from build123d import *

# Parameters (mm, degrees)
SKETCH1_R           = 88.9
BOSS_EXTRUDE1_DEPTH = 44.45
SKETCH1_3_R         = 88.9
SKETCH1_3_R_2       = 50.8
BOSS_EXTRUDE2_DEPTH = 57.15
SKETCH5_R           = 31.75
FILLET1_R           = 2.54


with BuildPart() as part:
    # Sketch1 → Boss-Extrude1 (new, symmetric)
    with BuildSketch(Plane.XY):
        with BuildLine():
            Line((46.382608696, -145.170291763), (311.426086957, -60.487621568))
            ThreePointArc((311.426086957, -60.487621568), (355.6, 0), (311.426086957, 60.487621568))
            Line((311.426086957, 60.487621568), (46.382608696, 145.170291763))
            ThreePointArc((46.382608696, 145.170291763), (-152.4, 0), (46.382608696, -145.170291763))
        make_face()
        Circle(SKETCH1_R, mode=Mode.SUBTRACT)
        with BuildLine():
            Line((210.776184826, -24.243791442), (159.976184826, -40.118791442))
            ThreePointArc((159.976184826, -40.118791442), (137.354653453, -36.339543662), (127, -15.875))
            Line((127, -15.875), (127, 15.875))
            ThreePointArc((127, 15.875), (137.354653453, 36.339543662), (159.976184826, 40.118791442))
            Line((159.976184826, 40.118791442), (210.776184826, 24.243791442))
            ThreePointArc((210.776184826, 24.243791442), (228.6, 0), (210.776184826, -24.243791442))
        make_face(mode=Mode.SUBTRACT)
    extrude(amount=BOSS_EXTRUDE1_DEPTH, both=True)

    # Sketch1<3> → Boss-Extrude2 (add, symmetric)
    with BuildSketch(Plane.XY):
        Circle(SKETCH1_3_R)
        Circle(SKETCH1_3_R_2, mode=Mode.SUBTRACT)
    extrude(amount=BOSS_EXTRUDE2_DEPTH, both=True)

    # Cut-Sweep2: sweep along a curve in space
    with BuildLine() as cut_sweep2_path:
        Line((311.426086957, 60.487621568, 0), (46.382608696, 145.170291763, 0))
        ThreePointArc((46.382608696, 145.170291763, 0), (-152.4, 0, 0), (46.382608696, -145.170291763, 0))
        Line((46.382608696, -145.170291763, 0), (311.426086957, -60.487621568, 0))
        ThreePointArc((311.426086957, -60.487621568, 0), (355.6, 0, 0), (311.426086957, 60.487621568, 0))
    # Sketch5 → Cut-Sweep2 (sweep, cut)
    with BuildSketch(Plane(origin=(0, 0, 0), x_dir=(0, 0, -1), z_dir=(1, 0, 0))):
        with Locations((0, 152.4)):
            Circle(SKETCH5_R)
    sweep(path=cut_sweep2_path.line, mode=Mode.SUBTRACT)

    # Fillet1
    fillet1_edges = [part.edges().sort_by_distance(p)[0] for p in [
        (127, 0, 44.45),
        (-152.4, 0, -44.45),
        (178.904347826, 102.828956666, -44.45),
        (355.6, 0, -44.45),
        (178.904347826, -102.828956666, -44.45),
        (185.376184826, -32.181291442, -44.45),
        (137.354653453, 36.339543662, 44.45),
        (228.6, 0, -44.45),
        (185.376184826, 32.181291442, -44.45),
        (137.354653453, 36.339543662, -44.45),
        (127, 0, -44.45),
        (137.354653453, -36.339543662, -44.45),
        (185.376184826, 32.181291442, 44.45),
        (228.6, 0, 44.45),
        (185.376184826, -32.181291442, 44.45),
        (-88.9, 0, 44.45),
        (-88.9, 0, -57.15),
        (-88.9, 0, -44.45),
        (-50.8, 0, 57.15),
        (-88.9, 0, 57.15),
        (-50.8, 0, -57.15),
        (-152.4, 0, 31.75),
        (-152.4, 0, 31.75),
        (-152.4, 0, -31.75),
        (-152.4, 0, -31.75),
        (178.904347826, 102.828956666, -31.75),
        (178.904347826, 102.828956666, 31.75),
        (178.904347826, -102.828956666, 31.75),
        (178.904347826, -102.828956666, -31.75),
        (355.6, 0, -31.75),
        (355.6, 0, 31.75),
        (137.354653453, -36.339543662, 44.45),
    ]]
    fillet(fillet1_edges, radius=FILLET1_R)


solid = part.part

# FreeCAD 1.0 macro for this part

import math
import FreeCAD as App
import Part
import Sketcher
Q = App.Units.Quantity


def edges_at(feature, points):
    """Names of the edges that pass closest to the given points."""
    edges = feature.Shape.Edges
    near = lambda p: min(range(len(edges)), key=lambda i: edges[i].distToShape(Part.Vertex(*p))[0])
    return sorted({f"Edge{near(p) + 1}" for p in points})

doc = App.newDocument("Part")
params = doc.addObject("Spreadsheet::Sheet", "Params")
for row, (alias, value) in enumerate([
    ("sketch1_diameter", "7 in"),
    ("sketch1_radius", "6 in"),
    ("sketch1_radius2", "1 in"),
    ("sketch1_radius3", "2.5 in"),
    ("sketch1_height", "1.25 in"),
    ("pad1_length", "3.5 in"),
    ("sketch2_diameter", "7 in"),
    ("sketch2_diameter2", "4 in"),
    ("pad2_length", "4.5 in"),
    ("sketch3_diameter", "2.5 in"),
    ("sketch4_radius", "6 in"),
    ("sketch4_radius2", "2.5 in"),
    ("fillet_radius", "0.1 in"),
], start=1):
    params.set(f"A{row}", alias)
    params.set(f"B{row}", "=" + value)
    params.setAlias(f"B{row}", alias)

body = doc.addObject("PartDesign::Body", "Body")

# Sketch on XY plane
sketch1 = body.newObject("Sketcher::SketchObject", "Sketch")
sketch1.AttachmentSupport = (doc.getObject("XY_Plane"), [""])
sketch1.MapMode = "FlatFace"
sketch1.addGeometry(Part.LineSegment(App.Vector(46, -145, 0), App.Vector(311, -60, 0)), False)
sketch1.addGeometry(Part.ArcOfCircle(Part.Circle(App.Vector(292, 0, 0), App.Vector(0, 0, 1), 64), math.radians(-72), math.radians(72)), False)
sketch1.addGeometry(Part.LineSegment(App.Vector(311, 60, 0), App.Vector(46, 145, 0)), False)
sketch1.addGeometry(Part.ArcOfCircle(Part.Circle(App.Vector(0, 0, 0), App.Vector(0, 0, 1), 152), math.radians(72), math.radians(288)), False)
sketch1.addGeometry(Part.Circle(App.Vector(0, 0, 0), App.Vector(0, 0, 1), 89), False)
sketch1.addGeometry(Part.ArcOfCircle(Part.Circle(App.Vector(203, 0, 0), App.Vector(0, 0, 1), 25), math.radians(-73), math.radians(73)), False)
sketch1.addGeometry(Part.LineSegment(App.Vector(211, -24, 0), App.Vector(160, -40, 0)), False)
sketch1.addGeometry(Part.ArcOfCircle(Part.Circle(App.Vector(152, -16, 0), App.Vector(0, 0, 1), 25), math.radians(180), math.radians(287)), False)
sketch1.addGeometry(Part.LineSegment(App.Vector(127, -16, 0), App.Vector(127, 16, 0)), False)
sketch1.addGeometry(Part.ArcOfCircle(Part.Circle(App.Vector(152, 16, 0), App.Vector(0, 0, 1), 25), math.radians(73), math.radians(180)), False)
sketch1.addGeometry(Part.LineSegment(App.Vector(160, 40, 0), App.Vector(211, 24, 0)), False)
sketch1.addConstraint(Sketcher.Constraint("Tangent", 0, 2, 1, 1))
sketch1.addConstraint(Sketcher.Constraint("Tangent", 1, 2, 2, 1))
sketch1.addConstraint(Sketcher.Constraint("Tangent", 2, 2, 3, 1))
sketch1.addConstraint(Sketcher.Constraint("Tangent", 3, 2, 0, 1))
sketch1.addConstraint(Sketcher.Constraint("Tangent", 5, 1, 6, 1))
sketch1.addConstraint(Sketcher.Constraint("Tangent", 6, 2, 7, 2))
sketch1.addConstraint(Sketcher.Constraint("Tangent", 7, 1, 8, 1))
sketch1.addConstraint(Sketcher.Constraint("Tangent", 8, 2, 9, 2))
sketch1.addConstraint(Sketcher.Constraint("Tangent", 9, 1, 10, 1))
sketch1.addConstraint(Sketcher.Constraint("Tangent", 10, 2, 5, 2))
sketch1.addConstraint(Sketcher.Constraint("Vertical", 8))
sketch1.addConstraint(Sketcher.Constraint("Coincident", 3, 3, -1, 1))
sketch1.addConstraint(Sketcher.Constraint("Coincident", 4, 3, -1, 1))
sketch1.addConstraint(Sketcher.Constraint("Equal", 5, 7))
sketch1.addConstraint(Sketcher.Constraint("Equal", 7, 9))
sketch1.addConstraint(Sketcher.Constraint("Symmetric", 6, 2, 9, 1, -1))
sketch1.addConstraint(Sketcher.Constraint("PointOnObject", 1, 3, -1))
sketch1.addConstraint(Sketcher.Constraint("Diameter", 4, Q("7 in")))
sketch1.addConstraint(Sketcher.Constraint("Radius", 3, Q("6 in")))
sketch1.addConstraint(Sketcher.Constraint("Radius", 5, Q("1 in")))
sketch1.addConstraint(Sketcher.Constraint("Radius", 1, Q("2.5 in")))
sketch1.addConstraint(Sketcher.Constraint("DistanceX", -1, 1, 5, 3, Q("8 in")))
sketch1.addConstraint(Sketcher.Constraint("DistanceX", -1, 1, 7, 3, Q("6 in")))
sketch1.addConstraint(Sketcher.Constraint("DistanceY", 8, 1, 8, 2, Q("1.25 in")))
sketch1.addConstraint(Sketcher.Constraint("DistanceX", -1, 1, 1, 3, Q("11.5 in")))
sketch1.setExpression("Constraints[17]", "Params.sketch1_diameter")
sketch1.setExpression("Constraints[18]", "Params.sketch1_radius")
sketch1.setExpression("Constraints[19]", "Params.sketch1_radius2")
sketch1.setExpression("Constraints[20]", "Params.sketch1_radius3")
sketch1.setExpression("Constraints[23]", "Params.sketch1_height")
pad1 = body.newObject("PartDesign::Pad", "Pad")
pad1.Profile = sketch1
pad1.setExpression("Length", "Params.pad1_length")
pad1.Midplane = True

# Sketch on XY plane
sketch2 = body.newObject("Sketcher::SketchObject", "Sketch001")
sketch2.AttachmentSupport = (doc.getObject("XY_Plane"), [""])
sketch2.MapMode = "FlatFace"
sketch2.addGeometry(Part.Circle(App.Vector(0, 0, 0), App.Vector(0, 0, 1), 89), False)
sketch2.addGeometry(Part.Circle(App.Vector(0, 0, 0), App.Vector(0, 0, 1), 51), False)
sketch2.addConstraint(Sketcher.Constraint("Coincident", 0, 3, -1, 1))
sketch2.addConstraint(Sketcher.Constraint("Coincident", 1, 3, -1, 1))
sketch2.addConstraint(Sketcher.Constraint("Diameter", 0, Q("7 in")))
sketch2.addConstraint(Sketcher.Constraint("Diameter", 1, Q("4 in")))
sketch2.setExpression("Constraints[2]", "Params.sketch2_diameter")
sketch2.setExpression("Constraints[3]", "Params.sketch2_diameter2")
pad2 = body.newObject("PartDesign::Pad", "Pad001")
pad2.Profile = sketch2
pad2.setExpression("Length", "Params.pad2_length")
pad2.Midplane = True

# Sketch on YZ plane
sketch3 = body.newObject("Sketcher::SketchObject", "Sketch002")
sketch3.AttachmentSupport = (doc.getObject("YZ_Plane"), [""])
sketch3.MapMode = "FlatFace"
sketch3.addGeometry(Part.Circle(App.Vector(152, 0, 0), App.Vector(0, 0, 1), 32), False)
sketch3.addConstraint(Sketcher.Constraint("PointOnObject", 0, 3, -1))
sketch3.addConstraint(Sketcher.Constraint("Diameter", 0, Q("2.5 in")))
sketch3.addConstraint(Sketcher.Constraint("DistanceX", -1, 1, 0, 3, Q("6 in")))
sketch3.setExpression("Constraints[1]", "Params.sketch3_diameter")

# Sketch on XY plane
sketch4 = body.newObject("Sketcher::SketchObject", "Sketch003")
sketch4.AttachmentSupport = (doc.getObject("XY_Plane"), [""])
sketch4.MapMode = "FlatFace"
sketch4.addGeometry(Part.LineSegment(App.Vector(311, 60, 0), App.Vector(46, 145, 0)), False)
sketch4.addGeometry(Part.ArcOfCircle(Part.Circle(App.Vector(0, 0, 0), App.Vector(0, 0, 1), 152), math.radians(72), math.radians(288)), False)
sketch4.addGeometry(Part.LineSegment(App.Vector(46, -145, 0), App.Vector(311, -60, 0)), False)
sketch4.addGeometry(Part.ArcOfCircle(Part.Circle(App.Vector(292, 0, 0), App.Vector(0, 0, 1), 64), math.radians(-72), math.radians(72)), False)
sketch4.addConstraint(Sketcher.Constraint("Tangent", 0, 2, 1, 1))
sketch4.addConstraint(Sketcher.Constraint("Tangent", 1, 2, 2, 1))
sketch4.addConstraint(Sketcher.Constraint("Tangent", 2, 2, 3, 1))
sketch4.addConstraint(Sketcher.Constraint("Tangent", 3, 2, 0, 1))
sketch4.addConstraint(Sketcher.Constraint("Coincident", 1, 3, -1, 1))
sketch4.addConstraint(Sketcher.Constraint("PointOnObject", 3, 3, -1))
sketch4.addConstraint(Sketcher.Constraint("Radius", 1, Q("6 in")))
sketch4.addConstraint(Sketcher.Constraint("Radius", 3, Q("2.5 in")))
sketch4.addConstraint(Sketcher.Constraint("DistanceX", -1, 1, 3, 3, Q("11.5 in")))
sketch4.setExpression("Constraints[6]", "Params.sketch4_radius")
sketch4.setExpression("Constraints[7]", "Params.sketch4_radius2")
doc.recompute()

subtractivepipe = body.newObject("PartDesign::SubtractivePipe", "SubtractivePipe")
subtractivepipe.Profile = sketch3
subtractivepipe.Spine = (sketch4, ["Edge1", "Edge2", "Edge3", "Edge4"])
doc.recompute()

fillet = body.newObject("PartDesign::Fillet", "Fillet")
fillet.Base = (subtractivepipe, edges_at(subtractivepipe, [
    (127, 0, 44.45),
    (-152.4, 0, -44.45),
    (178.904, 102.829, -44.45),
    (355.6, 0, -44.45),
    (178.904, -102.829, -44.45),
    (185.376, -32.181, -44.45),
    (137.355, 36.34, 44.45),
    (228.6, 0, -44.45),
    (185.376, 32.181, -44.45),
    (137.355, 36.34, -44.45),
    (127, 0, -44.45),
    (137.355, -36.34, -44.45),
    (185.376, 32.181, 44.45),
    (228.6, 0, 44.45),
    (185.376, -32.181, 44.45),
    (-88.9, 0, 44.45),
    (-88.9, 0, -57.15),
    (-88.9, 0, -44.45),
    (-50.8, 0, 57.15),
    (-88.9, 0, 57.15),
    (-50.8, 0, -57.15),
    (-152.4, 0, 31.75),
    (-152.4, 0, 31.75),
    (-152.4, 0, -31.75),
    (-152.4, 0, -31.75),
    (178.904, 102.829, -31.75),
    (178.904, 102.829, 31.75),
    (178.904, -102.829, 31.75),
    (178.904, -102.829, -31.75),
    (355.6, 0, -31.75),
    (355.6, 0, 31.75),
    (137.355, -36.34, 44.45),
]))
fillet.setExpression("Radius", "Params.fillet_radius")

doc.recompute()
